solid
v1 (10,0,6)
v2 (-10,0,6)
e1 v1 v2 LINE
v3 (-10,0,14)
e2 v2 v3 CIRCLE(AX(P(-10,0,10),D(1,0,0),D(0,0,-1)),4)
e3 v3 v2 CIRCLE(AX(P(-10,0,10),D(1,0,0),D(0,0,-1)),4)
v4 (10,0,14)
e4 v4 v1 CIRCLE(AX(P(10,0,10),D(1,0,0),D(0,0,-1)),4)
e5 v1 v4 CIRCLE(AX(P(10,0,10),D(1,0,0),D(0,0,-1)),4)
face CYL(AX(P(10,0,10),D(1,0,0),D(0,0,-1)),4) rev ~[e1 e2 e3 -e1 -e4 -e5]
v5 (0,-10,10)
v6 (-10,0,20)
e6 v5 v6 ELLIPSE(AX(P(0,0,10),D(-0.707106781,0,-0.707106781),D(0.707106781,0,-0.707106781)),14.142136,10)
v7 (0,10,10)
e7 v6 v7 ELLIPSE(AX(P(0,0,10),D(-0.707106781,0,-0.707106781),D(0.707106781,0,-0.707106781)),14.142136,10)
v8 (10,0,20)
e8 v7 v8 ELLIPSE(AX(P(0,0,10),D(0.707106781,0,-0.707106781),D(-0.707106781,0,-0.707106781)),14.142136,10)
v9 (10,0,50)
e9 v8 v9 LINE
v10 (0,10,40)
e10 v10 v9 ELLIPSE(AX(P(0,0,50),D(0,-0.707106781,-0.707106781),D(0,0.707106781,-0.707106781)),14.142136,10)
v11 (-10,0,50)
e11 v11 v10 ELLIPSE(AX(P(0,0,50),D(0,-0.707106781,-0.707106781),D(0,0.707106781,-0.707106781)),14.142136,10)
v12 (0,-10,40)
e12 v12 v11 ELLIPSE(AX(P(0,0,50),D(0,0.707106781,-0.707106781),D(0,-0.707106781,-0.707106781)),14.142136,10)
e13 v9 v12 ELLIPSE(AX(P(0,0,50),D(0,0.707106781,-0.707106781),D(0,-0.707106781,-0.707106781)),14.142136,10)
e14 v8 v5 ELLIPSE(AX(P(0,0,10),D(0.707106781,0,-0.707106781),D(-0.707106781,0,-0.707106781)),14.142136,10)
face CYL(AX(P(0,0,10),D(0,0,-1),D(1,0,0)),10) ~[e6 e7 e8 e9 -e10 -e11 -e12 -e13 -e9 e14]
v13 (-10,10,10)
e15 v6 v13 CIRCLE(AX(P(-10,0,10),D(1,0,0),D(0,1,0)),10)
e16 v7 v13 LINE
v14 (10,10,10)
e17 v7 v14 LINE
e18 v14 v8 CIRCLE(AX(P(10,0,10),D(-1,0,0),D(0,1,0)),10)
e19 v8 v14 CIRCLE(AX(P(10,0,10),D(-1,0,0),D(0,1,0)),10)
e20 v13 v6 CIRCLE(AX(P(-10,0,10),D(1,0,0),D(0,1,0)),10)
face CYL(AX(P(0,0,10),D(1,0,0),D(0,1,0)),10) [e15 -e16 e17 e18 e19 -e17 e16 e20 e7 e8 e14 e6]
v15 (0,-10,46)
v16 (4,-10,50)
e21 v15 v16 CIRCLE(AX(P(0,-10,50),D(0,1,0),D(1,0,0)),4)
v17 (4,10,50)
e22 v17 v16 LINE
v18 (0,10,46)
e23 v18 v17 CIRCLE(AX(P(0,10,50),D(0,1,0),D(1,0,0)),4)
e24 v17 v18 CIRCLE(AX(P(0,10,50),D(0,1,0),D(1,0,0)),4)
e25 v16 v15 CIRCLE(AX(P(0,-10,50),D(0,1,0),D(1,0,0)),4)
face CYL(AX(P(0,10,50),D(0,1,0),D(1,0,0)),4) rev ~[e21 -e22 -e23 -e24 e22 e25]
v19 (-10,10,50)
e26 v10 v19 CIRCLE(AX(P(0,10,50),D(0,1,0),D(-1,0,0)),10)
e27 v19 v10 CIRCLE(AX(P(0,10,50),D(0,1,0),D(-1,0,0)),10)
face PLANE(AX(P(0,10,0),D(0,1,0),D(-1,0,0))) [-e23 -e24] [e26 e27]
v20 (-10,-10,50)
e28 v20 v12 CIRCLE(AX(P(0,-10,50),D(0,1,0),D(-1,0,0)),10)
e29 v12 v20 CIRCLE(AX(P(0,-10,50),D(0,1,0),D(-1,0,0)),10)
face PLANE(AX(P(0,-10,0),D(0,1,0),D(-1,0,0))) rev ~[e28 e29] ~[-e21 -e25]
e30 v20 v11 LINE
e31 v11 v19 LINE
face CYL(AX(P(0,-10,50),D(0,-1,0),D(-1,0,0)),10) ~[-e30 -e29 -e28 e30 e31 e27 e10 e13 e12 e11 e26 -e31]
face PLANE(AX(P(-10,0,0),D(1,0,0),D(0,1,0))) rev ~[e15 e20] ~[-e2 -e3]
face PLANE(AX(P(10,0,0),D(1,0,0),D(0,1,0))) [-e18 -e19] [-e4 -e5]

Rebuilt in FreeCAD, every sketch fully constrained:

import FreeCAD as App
import Part
import Sketcher

doc = App.newDocument("Part")
body = doc.addObject("PartDesign::Body", "Body")

# Sketch on XY plane
sketch1 = body.newObject("Sketcher::SketchObject", "Sketch")
sketch1.AttachmentSupport = (doc.getObject("XY_Plane"), [""])
sketch1.MapMode = "FlatFace"
sketch1.AttachmentOffset = App.Placement(App.Vector(0, 0, 10), App.Rotation())
sketch1.addGeometry(Part.Circle(App.Vector(0, 0, 0), App.Vector(0, 0, 1), 10), False)
sketch1.addConstraint([
    Sketcher.Constraint("Coincident", 0, 3, -1, 1),
    Sketcher.Constraint("Diameter", 0, 20.0),
])
pad1 = body.newObject("PartDesign::Pad", "Pad")
pad1.Profile = sketch1
pad1.Length = 40

# Sketch on XZ plane
sketch2 = body.newObject("Sketcher::SketchObject", "Sketch001")
sketch2.AttachmentSupport = (doc.getObject("XZ_Plane"), [""])
sketch2.MapMode = "FlatFace"
sketch2.AttachmentOffset = App.Placement(App.Vector(0, 0, 10), App.Rotation())
sketch2.addGeometry(Part.Circle(App.Vector(0, 50, 0), App.Vector(0, 0, 1), 10), False)
sketch2.addConstraint([
    Sketcher.Constraint("PointOnObject", 0, 3, -2),
    Sketcher.Constraint("Diameter", 0, 20.0),
    Sketcher.Constraint("DistanceY", -1, 1, 0, 3, 50.0),
])
pad2 = body.newObject("PartDesign::Pad", "Pad001")
pad2.Profile = sketch2
pad2.Length = 20
pad2.Reversed = True

# Sketch on XZ plane
sketch3 = body.newObject("Sketcher::SketchObject", "Sketch002")
sketch3.AttachmentSupport = (doc.getObject("XZ_Plane"), [""])
sketch3.MapMode = "FlatFace"
sketch3.AttachmentOffset = App.Placement(App.Vector(0, 0, -10), App.Rotation())
sketch3.addGeometry(Part.Circle(App.Vector(0, 50, 0), App.Vector(0, 0, 1), 4), False)
sketch3.addConstraint([
    Sketcher.Constraint("PointOnObject", 0, 3, -2),
    Sketcher.Constraint("Diameter", 0, 8.0),
    Sketcher.Constraint("DistanceY", -1, 1, 0, 3, 50.0),
])
pocket1 = body.newObject("PartDesign::Pocket", "Pocket")
pocket1.Profile = sketch3
pocket1.Type = "ThroughAll"
pocket1.Reversed = True

# Sketch on YZ plane
sketch4 = body.newObject("Sketcher::SketchObject", "Sketch003")
sketch4.AttachmentSupport = (doc.getObject("YZ_Plane"), [""])
sketch4.MapMode = "FlatFace"
sketch4.addGeometry(Part.Circle(App.Vector(0, 10, 0), App.Vector(0, 0, 1), 10), False)
sketch4.addConstraint([
    Sketcher.Constraint("PointOnObject", 0, 3, -2),
    Sketcher.Constraint("Diameter", 0, 20.0),
    Sketcher.Constraint("DistanceY", -1, 1, 0, 3, 10.0),
])
pad3 = body.newObject("PartDesign::Pad", "Pad002")
pad3.Profile = sketch4
pad3.Length = 20
pad3.Midplane = True

# Sketch on YZ plane
sketch5 = body.newObject("Sketcher::SketchObject", "Sketch004")
sketch5.AttachmentSupport = (doc.getObject("YZ_Plane"), [""])
sketch5.MapMode = "FlatFace"
sketch5.AttachmentOffset = App.Placement(App.Vector(0, 0, 10), App.Rotation())
sketch5.addGeometry(Part.Circle(App.Vector(0, 10, 0), App.Vector(0, 0, 1), 4), False)
sketch5.addConstraint([
    Sketcher.Constraint("PointOnObject", 0, 3, -2),
    Sketcher.Constraint("Diameter", 0, 8.0),
    Sketcher.Constraint("DistanceY", -1, 1, 0, 3, 10.0),
])
pocket2 = body.newObject("PartDesign::Pocket", "Pocket001")
pocket2.Profile = sketch5
pocket2.Type = "ThroughAll"

doc.recompute()
